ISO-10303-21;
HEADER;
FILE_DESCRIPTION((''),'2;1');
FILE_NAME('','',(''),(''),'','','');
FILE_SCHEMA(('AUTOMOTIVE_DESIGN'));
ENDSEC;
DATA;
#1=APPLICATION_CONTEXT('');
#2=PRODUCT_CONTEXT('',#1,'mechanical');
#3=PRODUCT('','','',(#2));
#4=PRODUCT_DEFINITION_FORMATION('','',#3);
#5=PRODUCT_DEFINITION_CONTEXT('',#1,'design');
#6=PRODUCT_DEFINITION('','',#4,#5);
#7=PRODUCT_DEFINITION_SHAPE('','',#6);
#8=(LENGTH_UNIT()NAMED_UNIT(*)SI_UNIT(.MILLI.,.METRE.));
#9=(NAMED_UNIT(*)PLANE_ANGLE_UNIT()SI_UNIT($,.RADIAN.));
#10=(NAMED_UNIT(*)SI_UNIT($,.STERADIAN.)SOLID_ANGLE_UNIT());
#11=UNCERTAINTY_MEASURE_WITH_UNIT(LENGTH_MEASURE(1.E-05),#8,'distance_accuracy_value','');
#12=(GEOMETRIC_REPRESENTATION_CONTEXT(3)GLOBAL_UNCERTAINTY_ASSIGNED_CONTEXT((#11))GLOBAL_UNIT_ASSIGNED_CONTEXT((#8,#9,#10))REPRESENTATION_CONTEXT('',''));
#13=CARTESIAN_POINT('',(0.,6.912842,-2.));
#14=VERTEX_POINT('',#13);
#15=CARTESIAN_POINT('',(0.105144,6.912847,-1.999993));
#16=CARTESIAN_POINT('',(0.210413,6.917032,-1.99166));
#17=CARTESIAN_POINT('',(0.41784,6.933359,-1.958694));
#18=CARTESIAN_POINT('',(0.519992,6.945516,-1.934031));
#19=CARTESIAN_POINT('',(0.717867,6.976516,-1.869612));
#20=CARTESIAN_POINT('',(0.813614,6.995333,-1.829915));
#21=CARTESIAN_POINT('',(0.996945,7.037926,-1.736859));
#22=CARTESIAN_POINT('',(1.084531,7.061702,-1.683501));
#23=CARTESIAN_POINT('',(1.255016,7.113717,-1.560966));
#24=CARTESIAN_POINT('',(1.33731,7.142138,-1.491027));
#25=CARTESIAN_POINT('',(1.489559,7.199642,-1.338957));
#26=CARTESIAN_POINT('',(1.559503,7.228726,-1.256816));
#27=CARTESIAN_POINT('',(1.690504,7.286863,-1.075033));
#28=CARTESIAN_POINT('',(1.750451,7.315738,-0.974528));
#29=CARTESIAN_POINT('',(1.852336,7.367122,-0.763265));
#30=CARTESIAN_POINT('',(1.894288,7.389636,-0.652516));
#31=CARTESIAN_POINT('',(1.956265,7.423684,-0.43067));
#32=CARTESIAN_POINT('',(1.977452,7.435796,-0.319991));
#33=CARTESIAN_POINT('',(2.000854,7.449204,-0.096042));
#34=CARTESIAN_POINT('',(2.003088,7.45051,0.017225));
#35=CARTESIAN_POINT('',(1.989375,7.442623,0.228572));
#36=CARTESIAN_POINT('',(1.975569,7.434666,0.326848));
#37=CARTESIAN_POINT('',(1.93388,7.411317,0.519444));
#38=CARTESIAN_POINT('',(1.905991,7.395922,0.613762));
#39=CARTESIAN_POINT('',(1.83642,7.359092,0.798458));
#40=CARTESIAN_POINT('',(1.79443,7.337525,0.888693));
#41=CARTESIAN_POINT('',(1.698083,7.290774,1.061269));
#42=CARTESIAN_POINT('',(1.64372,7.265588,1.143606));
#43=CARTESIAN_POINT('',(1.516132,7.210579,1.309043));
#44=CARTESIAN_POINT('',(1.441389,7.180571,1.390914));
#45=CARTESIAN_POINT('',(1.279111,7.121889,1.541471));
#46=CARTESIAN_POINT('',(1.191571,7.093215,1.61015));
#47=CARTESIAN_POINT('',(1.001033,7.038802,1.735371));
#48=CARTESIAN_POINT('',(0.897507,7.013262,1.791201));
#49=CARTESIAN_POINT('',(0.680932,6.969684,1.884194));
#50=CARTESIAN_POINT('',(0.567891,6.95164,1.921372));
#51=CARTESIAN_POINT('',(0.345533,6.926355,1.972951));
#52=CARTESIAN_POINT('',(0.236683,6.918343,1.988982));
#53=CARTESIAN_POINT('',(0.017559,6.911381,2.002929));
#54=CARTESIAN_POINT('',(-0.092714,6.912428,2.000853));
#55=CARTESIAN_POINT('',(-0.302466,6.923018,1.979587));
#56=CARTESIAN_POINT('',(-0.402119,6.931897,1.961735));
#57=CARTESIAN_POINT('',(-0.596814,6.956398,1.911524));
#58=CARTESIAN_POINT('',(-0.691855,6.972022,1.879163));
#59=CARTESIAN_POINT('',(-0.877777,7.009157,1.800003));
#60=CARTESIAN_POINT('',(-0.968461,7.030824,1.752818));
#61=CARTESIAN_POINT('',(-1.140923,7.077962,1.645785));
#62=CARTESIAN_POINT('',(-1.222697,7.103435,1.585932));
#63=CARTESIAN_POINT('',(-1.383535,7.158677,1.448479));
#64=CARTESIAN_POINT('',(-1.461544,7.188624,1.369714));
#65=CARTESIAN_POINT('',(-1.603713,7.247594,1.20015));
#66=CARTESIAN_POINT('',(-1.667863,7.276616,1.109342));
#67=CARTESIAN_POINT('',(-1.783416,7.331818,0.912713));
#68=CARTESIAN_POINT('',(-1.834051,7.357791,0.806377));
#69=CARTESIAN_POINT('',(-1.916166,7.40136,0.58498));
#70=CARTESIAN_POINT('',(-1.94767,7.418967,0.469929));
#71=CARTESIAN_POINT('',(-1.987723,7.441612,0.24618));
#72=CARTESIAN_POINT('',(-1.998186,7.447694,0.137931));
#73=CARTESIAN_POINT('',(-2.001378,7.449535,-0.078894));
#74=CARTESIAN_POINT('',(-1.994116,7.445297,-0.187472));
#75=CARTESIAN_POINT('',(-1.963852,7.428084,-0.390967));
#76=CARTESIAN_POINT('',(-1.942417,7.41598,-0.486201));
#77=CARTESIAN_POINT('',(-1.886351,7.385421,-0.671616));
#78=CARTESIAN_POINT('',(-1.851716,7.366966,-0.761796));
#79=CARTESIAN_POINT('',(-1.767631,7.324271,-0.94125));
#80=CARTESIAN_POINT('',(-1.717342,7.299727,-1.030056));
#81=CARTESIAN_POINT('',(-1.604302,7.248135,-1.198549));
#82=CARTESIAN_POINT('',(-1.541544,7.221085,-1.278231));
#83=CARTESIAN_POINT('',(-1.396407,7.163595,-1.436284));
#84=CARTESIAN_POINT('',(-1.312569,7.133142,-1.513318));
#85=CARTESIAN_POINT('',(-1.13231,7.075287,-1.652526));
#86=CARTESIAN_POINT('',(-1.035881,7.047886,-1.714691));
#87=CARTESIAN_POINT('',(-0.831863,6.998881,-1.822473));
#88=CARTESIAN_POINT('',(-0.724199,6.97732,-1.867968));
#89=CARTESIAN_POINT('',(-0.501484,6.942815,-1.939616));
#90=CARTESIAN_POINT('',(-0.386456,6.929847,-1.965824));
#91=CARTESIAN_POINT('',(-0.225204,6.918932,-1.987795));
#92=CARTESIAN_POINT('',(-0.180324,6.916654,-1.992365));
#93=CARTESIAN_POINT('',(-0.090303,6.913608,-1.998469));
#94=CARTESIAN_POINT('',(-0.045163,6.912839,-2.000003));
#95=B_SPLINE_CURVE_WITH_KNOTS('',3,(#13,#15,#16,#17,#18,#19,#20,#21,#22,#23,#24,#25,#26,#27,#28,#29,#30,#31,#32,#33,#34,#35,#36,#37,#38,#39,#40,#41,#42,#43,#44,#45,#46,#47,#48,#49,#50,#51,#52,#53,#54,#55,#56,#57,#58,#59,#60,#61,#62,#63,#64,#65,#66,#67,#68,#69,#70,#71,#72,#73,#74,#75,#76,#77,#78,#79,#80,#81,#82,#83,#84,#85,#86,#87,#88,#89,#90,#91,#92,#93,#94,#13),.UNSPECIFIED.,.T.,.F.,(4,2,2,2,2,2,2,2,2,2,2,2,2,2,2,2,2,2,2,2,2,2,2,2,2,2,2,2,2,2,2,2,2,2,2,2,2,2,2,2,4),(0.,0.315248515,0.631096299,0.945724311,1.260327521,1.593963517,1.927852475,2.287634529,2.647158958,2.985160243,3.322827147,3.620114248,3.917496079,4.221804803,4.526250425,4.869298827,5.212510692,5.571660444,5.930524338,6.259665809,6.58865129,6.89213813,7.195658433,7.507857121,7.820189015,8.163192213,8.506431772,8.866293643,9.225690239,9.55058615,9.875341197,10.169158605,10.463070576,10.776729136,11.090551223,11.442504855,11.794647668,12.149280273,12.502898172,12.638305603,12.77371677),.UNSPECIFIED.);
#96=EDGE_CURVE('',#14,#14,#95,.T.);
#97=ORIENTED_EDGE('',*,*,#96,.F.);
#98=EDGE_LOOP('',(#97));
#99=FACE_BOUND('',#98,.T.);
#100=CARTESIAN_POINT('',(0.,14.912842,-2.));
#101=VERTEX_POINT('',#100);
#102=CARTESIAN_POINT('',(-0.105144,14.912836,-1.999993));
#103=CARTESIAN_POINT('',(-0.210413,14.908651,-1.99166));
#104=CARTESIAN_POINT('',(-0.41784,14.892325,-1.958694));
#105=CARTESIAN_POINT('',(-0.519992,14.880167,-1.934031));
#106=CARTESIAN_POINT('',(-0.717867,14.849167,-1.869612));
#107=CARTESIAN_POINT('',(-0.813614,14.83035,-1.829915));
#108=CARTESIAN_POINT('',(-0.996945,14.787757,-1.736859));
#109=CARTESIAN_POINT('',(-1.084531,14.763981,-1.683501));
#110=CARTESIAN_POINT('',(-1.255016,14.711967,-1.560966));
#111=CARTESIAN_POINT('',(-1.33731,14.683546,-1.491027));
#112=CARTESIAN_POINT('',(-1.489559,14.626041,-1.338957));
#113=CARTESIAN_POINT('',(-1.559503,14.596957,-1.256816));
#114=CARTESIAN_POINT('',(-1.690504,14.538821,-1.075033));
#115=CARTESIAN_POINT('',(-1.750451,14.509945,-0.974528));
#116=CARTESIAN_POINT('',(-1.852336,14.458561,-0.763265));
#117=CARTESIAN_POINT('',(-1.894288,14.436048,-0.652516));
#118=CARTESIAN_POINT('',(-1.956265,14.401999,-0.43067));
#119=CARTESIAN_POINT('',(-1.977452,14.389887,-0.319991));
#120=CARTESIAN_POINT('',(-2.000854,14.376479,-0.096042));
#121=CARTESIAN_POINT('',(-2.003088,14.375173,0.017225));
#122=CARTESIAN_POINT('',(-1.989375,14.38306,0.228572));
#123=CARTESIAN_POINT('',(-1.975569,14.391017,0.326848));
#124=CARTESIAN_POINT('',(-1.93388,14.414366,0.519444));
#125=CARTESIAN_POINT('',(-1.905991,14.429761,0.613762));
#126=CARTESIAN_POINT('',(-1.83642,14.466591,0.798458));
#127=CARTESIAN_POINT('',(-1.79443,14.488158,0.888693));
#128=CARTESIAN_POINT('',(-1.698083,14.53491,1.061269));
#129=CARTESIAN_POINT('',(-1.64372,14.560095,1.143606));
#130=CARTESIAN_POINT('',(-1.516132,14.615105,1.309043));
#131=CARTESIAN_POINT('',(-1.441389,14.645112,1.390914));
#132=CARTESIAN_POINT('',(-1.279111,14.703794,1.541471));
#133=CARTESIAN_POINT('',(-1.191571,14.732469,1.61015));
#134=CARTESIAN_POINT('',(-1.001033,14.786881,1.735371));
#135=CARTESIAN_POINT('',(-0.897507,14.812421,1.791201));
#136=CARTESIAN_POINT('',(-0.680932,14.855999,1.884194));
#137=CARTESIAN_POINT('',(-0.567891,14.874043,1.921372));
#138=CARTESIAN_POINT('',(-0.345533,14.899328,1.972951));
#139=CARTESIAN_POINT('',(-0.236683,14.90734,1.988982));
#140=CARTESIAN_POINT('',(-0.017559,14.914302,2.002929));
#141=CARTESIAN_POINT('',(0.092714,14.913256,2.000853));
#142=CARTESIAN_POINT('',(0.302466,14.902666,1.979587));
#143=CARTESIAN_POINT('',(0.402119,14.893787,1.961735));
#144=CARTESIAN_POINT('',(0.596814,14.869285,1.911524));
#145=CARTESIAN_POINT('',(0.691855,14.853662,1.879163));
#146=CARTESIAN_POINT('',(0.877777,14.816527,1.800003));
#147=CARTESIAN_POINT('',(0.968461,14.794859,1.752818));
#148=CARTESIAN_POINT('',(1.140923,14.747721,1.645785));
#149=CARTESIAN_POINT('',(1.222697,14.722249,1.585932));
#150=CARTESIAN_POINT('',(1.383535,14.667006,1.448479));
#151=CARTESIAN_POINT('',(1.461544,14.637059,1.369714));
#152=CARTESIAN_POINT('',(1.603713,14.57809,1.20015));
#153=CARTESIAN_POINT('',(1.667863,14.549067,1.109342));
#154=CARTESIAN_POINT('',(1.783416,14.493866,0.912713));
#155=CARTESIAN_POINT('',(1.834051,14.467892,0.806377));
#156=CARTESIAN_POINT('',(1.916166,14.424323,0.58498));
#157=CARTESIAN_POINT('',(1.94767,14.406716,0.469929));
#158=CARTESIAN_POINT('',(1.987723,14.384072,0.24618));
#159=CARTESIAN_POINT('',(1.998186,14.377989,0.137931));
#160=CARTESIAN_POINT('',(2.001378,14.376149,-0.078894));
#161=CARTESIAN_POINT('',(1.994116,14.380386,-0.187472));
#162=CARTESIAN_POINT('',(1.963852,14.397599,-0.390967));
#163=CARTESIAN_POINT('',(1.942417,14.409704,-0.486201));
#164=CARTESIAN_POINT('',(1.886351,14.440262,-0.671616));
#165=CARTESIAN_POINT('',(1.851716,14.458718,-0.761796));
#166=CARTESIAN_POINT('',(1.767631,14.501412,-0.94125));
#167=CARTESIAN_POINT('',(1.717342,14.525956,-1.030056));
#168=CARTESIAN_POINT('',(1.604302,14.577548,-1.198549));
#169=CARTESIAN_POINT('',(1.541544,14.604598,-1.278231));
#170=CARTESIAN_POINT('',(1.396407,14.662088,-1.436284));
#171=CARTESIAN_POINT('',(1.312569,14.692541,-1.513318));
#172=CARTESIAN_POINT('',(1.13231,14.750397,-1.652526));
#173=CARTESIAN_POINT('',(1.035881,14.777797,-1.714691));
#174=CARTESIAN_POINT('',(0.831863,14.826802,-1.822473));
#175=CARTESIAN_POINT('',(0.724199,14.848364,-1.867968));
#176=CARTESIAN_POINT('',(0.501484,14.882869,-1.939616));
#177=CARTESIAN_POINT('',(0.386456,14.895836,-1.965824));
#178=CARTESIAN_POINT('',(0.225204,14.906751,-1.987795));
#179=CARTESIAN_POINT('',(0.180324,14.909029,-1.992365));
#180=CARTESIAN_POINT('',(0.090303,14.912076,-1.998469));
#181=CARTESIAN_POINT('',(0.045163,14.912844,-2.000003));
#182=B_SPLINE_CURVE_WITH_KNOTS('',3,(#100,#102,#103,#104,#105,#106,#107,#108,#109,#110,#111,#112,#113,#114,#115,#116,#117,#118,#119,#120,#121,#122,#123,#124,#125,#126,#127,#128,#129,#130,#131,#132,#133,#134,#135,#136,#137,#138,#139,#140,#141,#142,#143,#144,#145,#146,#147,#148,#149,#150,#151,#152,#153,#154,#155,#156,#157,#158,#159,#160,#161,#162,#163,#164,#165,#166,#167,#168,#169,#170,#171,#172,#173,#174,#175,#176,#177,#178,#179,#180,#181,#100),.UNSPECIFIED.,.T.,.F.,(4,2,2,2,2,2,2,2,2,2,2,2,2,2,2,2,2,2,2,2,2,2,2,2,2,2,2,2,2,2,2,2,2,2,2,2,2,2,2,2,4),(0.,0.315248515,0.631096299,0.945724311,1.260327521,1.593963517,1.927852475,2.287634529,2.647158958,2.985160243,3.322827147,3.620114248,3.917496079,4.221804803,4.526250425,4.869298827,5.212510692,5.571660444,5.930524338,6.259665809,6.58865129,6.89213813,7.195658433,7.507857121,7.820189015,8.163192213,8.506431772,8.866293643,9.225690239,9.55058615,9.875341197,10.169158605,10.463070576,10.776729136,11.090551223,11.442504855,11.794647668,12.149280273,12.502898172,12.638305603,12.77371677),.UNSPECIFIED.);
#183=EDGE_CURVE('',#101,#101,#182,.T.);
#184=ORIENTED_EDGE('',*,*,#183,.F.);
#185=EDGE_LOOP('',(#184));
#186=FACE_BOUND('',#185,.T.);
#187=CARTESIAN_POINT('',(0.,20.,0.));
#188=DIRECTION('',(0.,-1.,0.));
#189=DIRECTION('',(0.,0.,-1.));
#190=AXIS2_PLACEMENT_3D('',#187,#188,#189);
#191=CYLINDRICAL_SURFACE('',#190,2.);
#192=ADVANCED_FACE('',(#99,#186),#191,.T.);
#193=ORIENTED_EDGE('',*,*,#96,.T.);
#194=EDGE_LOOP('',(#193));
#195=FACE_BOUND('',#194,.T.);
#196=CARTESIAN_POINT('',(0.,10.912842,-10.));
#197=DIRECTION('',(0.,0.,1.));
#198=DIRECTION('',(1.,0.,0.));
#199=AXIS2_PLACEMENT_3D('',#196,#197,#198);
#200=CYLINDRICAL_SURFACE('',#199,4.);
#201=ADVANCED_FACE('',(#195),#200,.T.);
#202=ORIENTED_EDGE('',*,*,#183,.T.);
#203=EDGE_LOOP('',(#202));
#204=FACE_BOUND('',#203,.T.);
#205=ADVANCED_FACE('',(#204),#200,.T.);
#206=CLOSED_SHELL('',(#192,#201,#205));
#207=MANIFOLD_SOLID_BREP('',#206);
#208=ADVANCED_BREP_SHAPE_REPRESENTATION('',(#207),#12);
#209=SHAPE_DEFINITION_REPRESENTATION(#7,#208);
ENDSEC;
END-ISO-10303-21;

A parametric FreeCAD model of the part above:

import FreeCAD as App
import Part
import Sketcher


def add_polygon(sketch, points):
    """Adds a closed chain of lines whose ends are joined by coincident constraints."""
    first, n = sketch.GeometryCount, len(points)
    for a, b in zip(points, points[1:] + points[:1]):
        sketch.addGeometry(Part.LineSegment(App.Vector(*a, 0), App.Vector(*b, 0)), False)
    for i in range(n):
        sketch.addConstraint(Sketcher.Constraint("Coincident", first + i, 2, first + (i + 1) % n, 1))

doc = App.newDocument("Part")
body = doc.addObject("PartDesign::Body", "Body")

# Sketch on XZ plane
sketch1 = body.newObject("Sketcher::SketchObject", "Sketch")
sketch1.AttachmentSupport = (doc.getObject("XZ_Plane"), [""])
sketch1.MapMode = "FlatFace"
sketch1.addGeometry(Part.Circle(App.Vector(0, 0, 0), App.Vector(0, 0, 1), 2), False)
sketch1.addConstraint([
    Sketcher.Constraint("Coincident", 0, 3, -1, 1),
    Sketcher.Constraint("Diameter", 0, 4.0),
])
pad1 = body.newObject("PartDesign::Pad", "Pad")
pad1.Profile = sketch1
pad1.Length = 20
pad1.Reversed = True

# Sketch on XY plane
sketch2 = body.newObject("Sketcher::SketchObject", "Sketch001")
sketch2.AttachmentSupport = (doc.getObject("XY_Plane"), [""])
sketch2.MapMode = "FlatFace"
add_polygon(sketch2, [(-5.1, 23.1), (-5.1, -3.1), (5.1, -3.1), (5.1, 23.1)])  # lines 0-3
sketch2.addGeometry(Part.Circle(App.Vector(0, 10.9, 0), App.Vector(0, 0, 1), 4), False)  # 4
sketch2.addConstraint([
    Sketcher.Constraint("Vertical", 0),
    Sketcher.Constraint("Horizontal", 1),
    Sketcher.Constraint("Vertical", 2),
    Sketcher.Constraint("Horizontal", 3),
    Sketcher.Constraint("PointOnObject", 4, 3, -2),
    Sketcher.Constraint("Diameter", 4, 8.0),
    Sketcher.Constraint("DistanceX", 1, 1, 1, 2, 10.156),
    Sketcher.Constraint("DistanceY", 0, 2, 0, 1, 26.156),
    Sketcher.Constraint("DistanceX", 0, 2, -1, 1, 5.078),
    Sketcher.Constraint("DistanceY", 0, 2, -1, 1, 3.078),
    Sketcher.Constraint("DistanceY", -1, 1, 4, 3, 10.912842),
])
pocket1 = body.newObject("PartDesign::Pocket", "Pocket")
pocket1.Profile = sketch2
pocket1.Length = 20
pocket1.Midplane = True

doc.recompute()
